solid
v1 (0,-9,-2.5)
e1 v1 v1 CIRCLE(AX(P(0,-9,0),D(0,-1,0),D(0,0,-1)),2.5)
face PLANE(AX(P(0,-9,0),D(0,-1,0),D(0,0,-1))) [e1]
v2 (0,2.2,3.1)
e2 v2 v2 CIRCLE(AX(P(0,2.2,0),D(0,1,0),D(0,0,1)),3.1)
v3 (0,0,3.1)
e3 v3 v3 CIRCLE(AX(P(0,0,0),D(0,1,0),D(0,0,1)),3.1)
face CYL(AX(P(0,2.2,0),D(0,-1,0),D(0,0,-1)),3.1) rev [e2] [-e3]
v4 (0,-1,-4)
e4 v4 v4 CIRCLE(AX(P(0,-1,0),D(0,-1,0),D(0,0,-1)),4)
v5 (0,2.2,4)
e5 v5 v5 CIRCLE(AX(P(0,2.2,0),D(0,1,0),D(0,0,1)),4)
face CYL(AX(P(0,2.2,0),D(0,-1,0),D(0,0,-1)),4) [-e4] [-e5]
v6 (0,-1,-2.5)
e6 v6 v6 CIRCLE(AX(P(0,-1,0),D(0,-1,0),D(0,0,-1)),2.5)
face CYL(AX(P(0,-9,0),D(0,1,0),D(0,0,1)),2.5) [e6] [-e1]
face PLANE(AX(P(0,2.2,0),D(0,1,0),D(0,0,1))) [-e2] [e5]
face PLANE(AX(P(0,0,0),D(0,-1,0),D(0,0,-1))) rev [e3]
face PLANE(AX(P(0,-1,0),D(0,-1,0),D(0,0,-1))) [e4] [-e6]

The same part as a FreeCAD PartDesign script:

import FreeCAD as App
import Part
import Sketcher

V = App.Vector
Q = App.Units.Quantity

doc = App.newDocument("Part")
body = doc.addObject("PartDesign::Body", "Body")

sketch1 = body.newObject("Sketcher::SketchObject", "Sketch")
sketch1.AttachmentSupport = (doc.getObject("XZ_Plane"), [""])
sketch1.MapMode = "FlatFace"
sketch1.addGeometry([
    Part.Circle(V(0, 0, 0), V(0, 0, 1), 4),
    Part.Circle(V(0, 0, 0), V(0, 0, 1), 3.1),
], False)
sketch1.addConstraint([
    Sketcher.Constraint("Coincident", 0, 3, -1, 1),
    Sketcher.Constraint("Coincident", 1, 3, -1, 1),
    Sketcher.Constraint("Diameter", 0, Q("8 mm")),
    Sketcher.Constraint("Diameter", 1, Q("6.2 mm")),
])
pad1 = body.newObject("PartDesign::Pad", "Pad")
pad1.Profile = sketch1
pad1.Length = 2.2
pad1.Reversed = True

sketch2 = body.newObject("Sketcher::SketchObject", "Sketch001")
sketch2.AttachmentSupport = (doc.getObject("XZ_Plane"), [""])
sketch2.MapMode = "FlatFace"
sketch2.AttachmentOffset = App.Placement(V(0, 0, 1), App.Rotation())
sketch2.addGeometry(Part.Circle(V(0, 0, 0), V(0, 0, 1), 4), False)
sketch2.addConstraint([
    Sketcher.Constraint("Coincident", 0, 3, -1, 1),
    Sketcher.Constraint("Diameter", 0, Q("8 mm")),
])
pad2 = body.newObject("PartDesign::Pad", "Pad001")
pad2.Profile = sketch2
pad2.Length = 1
pad2.Reversed = True

sketch3 = body.newObject("Sketcher::SketchObject", "Sketch002")
sketch3.AttachmentSupport = (doc.getObject("XZ_Plane"), [""])
sketch3.MapMode = "FlatFace"
sketch3.AttachmentOffset = App.Placement(V(0, 0, 1), App.Rotation())
sketch3.addGeometry(Part.Circle(V(0, 0, 0), V(0, 0, 1), 2.5), False)
sketch3.addConstraint([
    Sketcher.Constraint("Coincident", 0, 3, -1, 1),
    Sketcher.Constraint("Diameter", 0, Q("5 mm")),
])
pad3 = body.newObject("PartDesign::Pad", "Pad002")
pad3.Profile = sketch3
pad3.Length = 8

doc.recompute()
